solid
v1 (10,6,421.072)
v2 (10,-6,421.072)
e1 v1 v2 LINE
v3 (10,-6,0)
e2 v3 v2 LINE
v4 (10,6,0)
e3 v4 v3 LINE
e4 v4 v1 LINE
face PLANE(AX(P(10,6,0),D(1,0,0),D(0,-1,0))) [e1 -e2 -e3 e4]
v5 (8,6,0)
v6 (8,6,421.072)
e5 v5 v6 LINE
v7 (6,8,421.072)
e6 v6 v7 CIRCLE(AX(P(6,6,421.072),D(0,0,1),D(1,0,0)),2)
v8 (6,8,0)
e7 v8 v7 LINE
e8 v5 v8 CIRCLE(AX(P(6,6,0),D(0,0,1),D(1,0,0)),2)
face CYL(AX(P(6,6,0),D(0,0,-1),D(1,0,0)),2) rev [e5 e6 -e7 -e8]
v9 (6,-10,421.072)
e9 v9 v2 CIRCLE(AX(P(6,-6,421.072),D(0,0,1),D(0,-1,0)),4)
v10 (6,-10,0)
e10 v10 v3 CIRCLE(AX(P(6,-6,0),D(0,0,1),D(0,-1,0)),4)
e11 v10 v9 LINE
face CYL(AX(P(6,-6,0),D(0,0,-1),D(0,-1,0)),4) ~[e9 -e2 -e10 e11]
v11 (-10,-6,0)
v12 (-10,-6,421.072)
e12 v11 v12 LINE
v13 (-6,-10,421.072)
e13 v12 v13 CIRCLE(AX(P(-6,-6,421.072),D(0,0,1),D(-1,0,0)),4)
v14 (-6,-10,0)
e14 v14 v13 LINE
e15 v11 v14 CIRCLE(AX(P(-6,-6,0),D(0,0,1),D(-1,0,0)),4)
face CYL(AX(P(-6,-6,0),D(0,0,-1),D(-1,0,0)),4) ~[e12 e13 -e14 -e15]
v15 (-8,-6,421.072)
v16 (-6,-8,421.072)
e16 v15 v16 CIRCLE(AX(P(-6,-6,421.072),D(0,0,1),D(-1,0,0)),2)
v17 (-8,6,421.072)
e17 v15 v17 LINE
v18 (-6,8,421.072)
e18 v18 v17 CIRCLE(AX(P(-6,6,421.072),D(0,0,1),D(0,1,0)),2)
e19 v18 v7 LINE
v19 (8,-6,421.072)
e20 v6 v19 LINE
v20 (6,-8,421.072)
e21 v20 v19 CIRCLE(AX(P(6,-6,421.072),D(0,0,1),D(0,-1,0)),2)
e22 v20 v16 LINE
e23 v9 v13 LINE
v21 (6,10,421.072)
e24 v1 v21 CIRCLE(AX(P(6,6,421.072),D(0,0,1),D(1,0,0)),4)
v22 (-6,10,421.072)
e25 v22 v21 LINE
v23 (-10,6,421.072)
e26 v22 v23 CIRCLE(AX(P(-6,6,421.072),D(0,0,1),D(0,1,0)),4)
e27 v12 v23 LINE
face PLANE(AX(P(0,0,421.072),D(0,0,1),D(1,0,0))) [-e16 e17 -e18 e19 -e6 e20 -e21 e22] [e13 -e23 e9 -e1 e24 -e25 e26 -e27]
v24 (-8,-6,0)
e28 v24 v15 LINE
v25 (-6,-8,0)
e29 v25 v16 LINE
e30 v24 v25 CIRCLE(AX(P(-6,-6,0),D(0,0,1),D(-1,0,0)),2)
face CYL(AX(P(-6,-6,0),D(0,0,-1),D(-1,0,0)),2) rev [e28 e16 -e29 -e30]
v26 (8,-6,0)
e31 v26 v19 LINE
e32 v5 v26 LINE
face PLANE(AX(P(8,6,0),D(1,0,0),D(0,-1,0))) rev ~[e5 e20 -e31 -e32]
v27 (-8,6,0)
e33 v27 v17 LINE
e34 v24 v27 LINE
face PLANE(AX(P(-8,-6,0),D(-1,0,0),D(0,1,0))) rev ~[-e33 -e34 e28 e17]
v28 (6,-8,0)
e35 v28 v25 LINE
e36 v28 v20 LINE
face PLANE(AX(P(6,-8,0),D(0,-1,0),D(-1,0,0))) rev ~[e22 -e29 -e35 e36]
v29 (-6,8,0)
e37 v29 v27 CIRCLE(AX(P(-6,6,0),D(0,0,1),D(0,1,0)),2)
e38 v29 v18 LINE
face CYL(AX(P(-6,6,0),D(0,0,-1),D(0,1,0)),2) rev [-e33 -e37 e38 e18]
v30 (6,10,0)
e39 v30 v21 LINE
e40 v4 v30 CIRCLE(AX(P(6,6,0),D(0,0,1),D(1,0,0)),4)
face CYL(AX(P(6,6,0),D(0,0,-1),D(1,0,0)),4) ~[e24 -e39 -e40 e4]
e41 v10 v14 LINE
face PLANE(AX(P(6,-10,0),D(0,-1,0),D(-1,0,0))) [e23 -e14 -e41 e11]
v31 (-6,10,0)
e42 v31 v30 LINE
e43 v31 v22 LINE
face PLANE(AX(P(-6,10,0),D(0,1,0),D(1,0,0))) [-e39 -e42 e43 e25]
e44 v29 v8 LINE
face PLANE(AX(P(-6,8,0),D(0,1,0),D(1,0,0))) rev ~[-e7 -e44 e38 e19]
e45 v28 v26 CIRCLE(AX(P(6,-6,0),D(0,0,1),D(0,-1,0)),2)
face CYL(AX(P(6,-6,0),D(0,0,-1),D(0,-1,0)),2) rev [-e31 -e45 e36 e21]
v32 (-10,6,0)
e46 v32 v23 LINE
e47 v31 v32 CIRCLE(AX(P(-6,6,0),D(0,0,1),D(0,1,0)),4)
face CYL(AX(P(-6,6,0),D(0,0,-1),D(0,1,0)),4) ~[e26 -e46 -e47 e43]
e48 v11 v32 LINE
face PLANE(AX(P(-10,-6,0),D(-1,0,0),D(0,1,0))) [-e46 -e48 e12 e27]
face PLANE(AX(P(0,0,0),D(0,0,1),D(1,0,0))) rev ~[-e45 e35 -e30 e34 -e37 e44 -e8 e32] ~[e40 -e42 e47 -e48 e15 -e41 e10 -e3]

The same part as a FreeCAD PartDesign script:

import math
import FreeCAD as App
import Part
import Sketcher
from FreeCAD import Vector
Q = App.Units.Quantity

doc = App.newDocument("Part")
body = doc.addObject("PartDesign::Body", "Body")

sketch1 = doc.addObject("Sketcher::SketchObject", "Sketch")
body.addObject(sketch1)
sketch1.AttachmentSupport = (doc.XY_Plane, [""])
sketch1.MapMode = "FlatFace"
sketch1.addGeometry(Part.LineSegment(Vector(-10, 6, 0), Vector(-10, -6, 0)), False)
sketch1.addGeometry(Part.ArcOfCircle(Part.Circle(Vector(-6, -6, 0), Vector(0, 0, 1), 4), math.radians(180), math.radians(270)), False)
sketch1.addGeometry(Part.LineSegment(Vector(-6, -10, 0), Vector(6, -10, 0)), False)
sketch1.addGeometry(Part.ArcOfCircle(Part.Circle(Vector(6, -6, 0), Vector(0, 0, 1), 4), math.radians(-90), math.radians(0)), False)
sketch1.addGeometry(Part.LineSegment(Vector(10, -6, 0), Vector(10, 6, 0)), False)
sketch1.addGeometry(Part.ArcOfCircle(Part.Circle(Vector(6, 6, 0), Vector(0, 0, 1), 4), math.radians(0), math.radians(90)), False)
sketch1.addGeometry(Part.LineSegment(Vector(6, 10, 0), Vector(-6, 10, 0)), False)
sketch1.addGeometry(Part.ArcOfCircle(Part.Circle(Vector(-6, 6, 0), Vector(0, 0, 1), 4), math.radians(90), math.radians(180)), False)
sketch1.addGeometry(Part.ArcOfCircle(Part.Circle(Vector(-6, 6, 0), Vector(0, 0, 1), 2), math.radians(90), math.radians(180)), False)
sketch1.addGeometry(Part.LineSegment(Vector(-6, 8, 0), Vector(6, 8, 0)), False)
sketch1.addGeometry(Part.ArcOfCircle(Part.Circle(Vector(6, 6, 0), Vector(0, 0, 1), 2), math.radians(0), math.radians(90)), False)
sketch1.addGeometry(Part.LineSegment(Vector(8, 6, 0), Vector(8, -6, 0)), False)
sketch1.addGeometry(Part.ArcOfCircle(Part.Circle(Vector(6, -6, 0), Vector(0, 0, 1), 2), math.radians(-90), math.radians(0)), False)
sketch1.addGeometry(Part.LineSegment(Vector(6, -8, 0), Vector(-6, -8, 0)), False)
sketch1.addGeometry(Part.ArcOfCircle(Part.Circle(Vector(-6, -6, 0), Vector(0, 0, 1), 2), math.radians(180), math.radians(270)), False)
sketch1.addGeometry(Part.LineSegment(Vector(-8, -6, 0), Vector(-8, 6, 0)), False)
sketch1.addConstraint(Sketcher.Constraint("Tangent", 0, 2, 1, 1))
sketch1.addConstraint(Sketcher.Constraint("Tangent", 1, 2, 2, 1))
sketch1.addConstraint(Sketcher.Constraint("Tangent", 2, 2, 3, 1))
sketch1.addConstraint(Sketcher.Constraint("Tangent", 3, 2, 4, 1))
sketch1.addConstraint(Sketcher.Constraint("Tangent", 4, 2, 5, 1))
sketch1.addConstraint(Sketcher.Constraint("Tangent", 5, 2, 6, 1))
sketch1.addConstraint(Sketcher.Constraint("Tangent", 6, 2, 7, 1))
sketch1.addConstraint(Sketcher.Constraint("Tangent", 7, 2, 0, 1))
sketch1.addConstraint(Sketcher.Constraint("Tangent", 8, 1, 9, 1))
sketch1.addConstraint(Sketcher.Constraint("Tangent", 9, 2, 10, 2))
sketch1.addConstraint(Sketcher.Constraint("Tangent", 10, 1, 11, 1))
sketch1.addConstraint(Sketcher.Constraint("Tangent", 11, 2, 12, 2))
sketch1.addConstraint(Sketcher.Constraint("Tangent", 12, 1, 13, 1))
sketch1.addConstraint(Sketcher.Constraint("Tangent", 13, 2, 14, 2))
sketch1.addConstraint(Sketcher.Constraint("Tangent", 14, 1, 15, 1))
sketch1.addConstraint(Sketcher.Constraint("Tangent", 15, 2, 8, 2))
sketch1.addConstraint(Sketcher.Constraint("Vertical", 0))
sketch1.addConstraint(Sketcher.Constraint("Horizontal", 2))
sketch1.addConstraint(Sketcher.Constraint("Vertical", 4))
sketch1.addConstraint(Sketcher.Constraint("Horizontal", 6))
sketch1.addConstraint(Sketcher.Constraint("Horizontal", 9))
sketch1.addConstraint(Sketcher.Constraint("Vertical", 11))
sketch1.addConstraint(Sketcher.Constraint("Horizontal", 13))
sketch1.addConstraint(Sketcher.Constraint("Vertical", 15))
sketch1.addConstraint(Sketcher.Constraint("Coincident", 8, 3, 7, 3))
sketch1.addConstraint(Sketcher.Constraint("Coincident", 10, 3, 5, 3))
sketch1.addConstraint(Sketcher.Constraint("Coincident", 12, 3, 3, 3))
sketch1.addConstraint(Sketcher.Constraint("Equal", 1, 3))
sketch1.addConstraint(Sketcher.Constraint("Equal", 3, 5))
sketch1.addConstraint(Sketcher.Constraint("Equal", 5, 7))
sketch1.addConstraint(Sketcher.Constraint("Equal", 12, 14))
sketch1.addConstraint(Sketcher.Constraint("Symmetric", 1, 3, 5, 3, -1, 1))
sketch1.addConstraint(Sketcher.Constraint("Equal", 13, 0))
sketch1.addConstraint(Sketcher.Constraint("Radius", 1, Q("4 mm")))
sketch1.addConstraint(Sketcher.Constraint("Radius", 8, Q("2 mm")))
sketch1.addConstraint(Sketcher.Constraint("DistanceX", 0, 2, -1, 1, Q("10 mm")))
pad1 = doc.addObject("PartDesign::Pad", "Pad")
body.addObject(pad1)
pad1.Profile = sketch1
pad1.Length = 421.072

doc.recompute()
